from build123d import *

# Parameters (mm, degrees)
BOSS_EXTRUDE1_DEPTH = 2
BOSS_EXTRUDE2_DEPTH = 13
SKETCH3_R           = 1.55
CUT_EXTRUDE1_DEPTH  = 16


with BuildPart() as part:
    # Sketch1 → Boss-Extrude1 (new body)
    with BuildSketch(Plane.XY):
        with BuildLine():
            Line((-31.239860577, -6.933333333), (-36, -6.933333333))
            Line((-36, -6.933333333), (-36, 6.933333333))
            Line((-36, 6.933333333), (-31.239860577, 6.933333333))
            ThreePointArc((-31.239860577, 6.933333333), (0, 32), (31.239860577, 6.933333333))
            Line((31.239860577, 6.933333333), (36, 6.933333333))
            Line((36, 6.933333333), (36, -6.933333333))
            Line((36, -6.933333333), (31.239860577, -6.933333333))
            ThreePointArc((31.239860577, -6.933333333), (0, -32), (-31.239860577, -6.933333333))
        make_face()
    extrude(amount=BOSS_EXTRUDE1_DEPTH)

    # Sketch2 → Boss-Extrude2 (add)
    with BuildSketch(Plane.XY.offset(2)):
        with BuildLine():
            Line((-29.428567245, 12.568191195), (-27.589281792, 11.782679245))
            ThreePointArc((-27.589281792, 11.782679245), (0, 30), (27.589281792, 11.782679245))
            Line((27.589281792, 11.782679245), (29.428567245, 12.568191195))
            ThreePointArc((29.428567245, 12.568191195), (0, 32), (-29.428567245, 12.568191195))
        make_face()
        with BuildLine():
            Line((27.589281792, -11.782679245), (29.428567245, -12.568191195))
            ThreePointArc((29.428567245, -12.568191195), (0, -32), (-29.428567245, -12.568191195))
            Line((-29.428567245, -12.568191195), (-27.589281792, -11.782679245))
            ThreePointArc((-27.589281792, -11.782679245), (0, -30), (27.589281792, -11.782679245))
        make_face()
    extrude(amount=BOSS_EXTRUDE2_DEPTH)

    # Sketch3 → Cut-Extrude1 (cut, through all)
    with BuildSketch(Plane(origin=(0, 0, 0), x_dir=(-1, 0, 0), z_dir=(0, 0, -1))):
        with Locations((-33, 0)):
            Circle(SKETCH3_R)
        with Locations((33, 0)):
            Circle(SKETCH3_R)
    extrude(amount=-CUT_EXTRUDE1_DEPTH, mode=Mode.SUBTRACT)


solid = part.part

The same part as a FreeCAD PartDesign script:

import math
import FreeCAD as App
import Part
import Sketcher

V = App.Vector
Q = App.Units.Quantity

doc = App.newDocument("Part")
body = doc.addObject("PartDesign::Body", "Body")

sketch1 = body.newObject("Sketcher::SketchObject", "Sketch")
sketch1.AttachmentSupport = (doc.getObject("XY_Plane"), [""])
sketch1.MapMode = "FlatFace"
sketch1.addGeometry(Part.LineSegment(V(-36, -6.9, 0), V(-31.2, -6.9, 0)), False)
sketch1.addGeometry(Part.ArcOfCircle(Part.Circle(V(0, 0, 0), V(0, 0, 1), 32), math.radians(-167), math.radians(-13)), False)
sketch1.addGeometry(Part.LineSegment(V(31.2, -6.9, 0), V(36, -6.9, 0)), False)
sketch1.addGeometry(Part.LineSegment(V(36, -6.9, 0), V(36, 6.9, 0)), False)
sketch1.addGeometry(Part.LineSegment(V(36, 6.9, 0), V(31.2, 6.9, 0)), False)
sketch1.addGeometry(Part.ArcOfCircle(Part.Circle(V(0, 0, 0), V(0, 0, 1), 32), math.radians(13), math.radians(167)), False)
sketch1.addGeometry(Part.LineSegment(V(-31.2, 6.9, 0), V(-36, 6.9, 0)), False)
sketch1.addGeometry(Part.LineSegment(V(-36, 6.9, 0), V(-36, -6.9, 0)), False)
sketch1.addConstraint(Sketcher.Constraint("Coincident", 0, 2, 1, 1))
sketch1.addConstraint(Sketcher.Constraint("Coincident", 1, 2, 2, 1))
sketch1.addConstraint(Sketcher.Constraint("Coincident", 2, 2, 3, 1))
sketch1.addConstraint(Sketcher.Constraint("Coincident", 3, 2, 4, 1))
sketch1.addConstraint(Sketcher.Constraint("Coincident", 4, 2, 5, 1))
sketch1.addConstraint(Sketcher.Constraint("Coincident", 5, 2, 6, 1))
sketch1.addConstraint(Sketcher.Constraint("Coincident", 6, 2, 7, 1))
sketch1.addConstraint(Sketcher.Constraint("Coincident", 7, 2, 0, 1))
sketch1.addConstraint(Sketcher.Constraint("Horizontal", 0))
sketch1.addConstraint(Sketcher.Constraint("Horizontal", 2))
sketch1.addConstraint(Sketcher.Constraint("Vertical", 3))
sketch1.addConstraint(Sketcher.Constraint("Horizontal", 4))
sketch1.addConstraint(Sketcher.Constraint("Horizontal", 6))
sketch1.addConstraint(Sketcher.Constraint("Vertical", 7))
sketch1.addConstraint(Sketcher.Constraint("Coincident", 1, 3, -1, 1))
sketch1.addConstraint(Sketcher.Constraint("Coincident", 5, 3, -1, 1))
sketch1.addConstraint(Sketcher.Constraint("Equal", 1, 5))
sketch1.addConstraint(Sketcher.Constraint("Symmetric", 2, 2, 6, 2, -1, 1))
sketch1.addConstraint(Sketcher.Constraint("Horizontal", 0, 2, 1, 2))
sketch1.addConstraint(Sketcher.Constraint("Horizontal", 4, 2, 5, 2))
sketch1.addConstraint(Sketcher.Constraint("Radius", 1, Q("32 mm")))
sketch1.addConstraint(Sketcher.Constraint("DistanceX", -1, 1, 2, 2, Q("36 mm")))
sketch1.addConstraint(Sketcher.Constraint("DistanceX", 0, 1, 0, 2, Q("4.760139 mm")))
pad1 = body.newObject("PartDesign::Pad", "Pad")
pad1.Profile = sketch1
pad1.Length = 2

sketch2 = body.newObject("Sketcher::SketchObject", "Sketch001")
sketch2.AttachmentSupport = (doc.getObject("XY_Plane"), [""])
sketch2.MapMode = "FlatFace"
sketch2.AttachmentOffset = App.Placement(V(0, 0, 2), App.Rotation())
sketch2.addGeometry(Part.LineSegment(V(-29.4, 12.6, 0), V(-27.6, 11.8, 0)), False)
sketch2.addGeometry(Part.ArcOfCircle(Part.Circle(V(0, 0, 0), V(0, 0, 1), 30), math.radians(23), math.radians(157)), False)
sketch2.addGeometry(Part.LineSegment(V(27.6, 11.8, 0), V(29.4, 12.6, 0)), False)
sketch2.addGeometry(Part.ArcOfCircle(Part.Circle(V(0, 0, 0), V(0, 0, 1), 32), math.radians(23), math.radians(157)), False)
sketch2.addGeometry(Part.LineSegment(V(29.4, -12.6, 0), V(27.6, -11.8, 0)), False)
sketch2.addGeometry(Part.ArcOfCircle(Part.Circle(V(0, 0, 0), V(0, 0, 1), 30), math.radians(-157), math.radians(-23)), False)
sketch2.addGeometry(Part.LineSegment(V(-27.6, -11.8, 0), V(-29.4, -12.6, 0)), False)
sketch2.addGeometry(Part.ArcOfCircle(Part.Circle(V(0, 0, 0), V(0, 0, 1), 32), math.radians(-157), math.radians(-23)), False)
sketch2.addConstraint(Sketcher.Constraint("Coincident", 0, 2, 1, 2))
sketch2.addConstraint(Sketcher.Constraint("Coincident", 1, 1, 2, 1))
sketch2.addConstraint(Sketcher.Constraint("Coincident", 2, 2, 3, 1))
sketch2.addConstraint(Sketcher.Constraint("Coincident", 3, 2, 0, 1))
sketch2.addConstraint(Sketcher.Constraint("Coincident", 4, 2, 5, 2))
sketch2.addConstraint(Sketcher.Constraint("Coincident", 5, 1, 6, 1))
sketch2.addConstraint(Sketcher.Constraint("Coincident", 6, 2, 7, 1))
sketch2.addConstraint(Sketcher.Constraint("Coincident", 7, 2, 4, 1))
sketch2.addConstraint(Sketcher.Constraint("Coincident", 1, 3, -1, 1))
sketch2.addConstraint(Sketcher.Constraint("Coincident", 3, 3, -1, 1))
sketch2.addConstraint(Sketcher.Constraint("Coincident", 5, 3, -1, 1))
sketch2.addConstraint(Sketcher.Constraint("Coincident", 7, 3, -1, 1))
sketch2.addConstraint(Sketcher.Constraint("Equal", 1, 5))
sketch2.addConstraint(Sketcher.Constraint("Equal", 3, 7))
sketch2.addConstraint(Sketcher.Constraint("Parallel", 0, 4))
sketch2.addConstraint(Sketcher.Constraint("Parallel", 2, 6))
sketch2.addConstraint(Sketcher.Constraint("Horizontal", 0, 2, 1, 1))
sketch2.addConstraint(Sketcher.Constraint("Horizontal", 2, 2, 3, 2))
sketch2.addConstraint(Sketcher.Constraint("Horizontal", 4, 2, 5, 1))
sketch2.addConstraint(Sketcher.Constraint("Vertical", 1, 1, 4, 2))
sketch2.addConstraint(Sketcher.Constraint("Radius", 1, Q("30 mm")))
sketch2.addConstraint(Sketcher.Constraint("Radius", 3, Q("32 mm")))
sketch2.addConstraint(Sketcher.Constraint("DistanceX", 0, 2, -1, 1, Q("27.589282 mm")))
sketch2.addConstraint(Sketcher.Constraint("DistanceY", -1, 1, 2, 2, Q("12.568191 mm")))
pad2 = body.newObject("PartDesign::Pad", "Pad001")
pad2.Profile = sketch2
pad2.Length = 13

sketch3 = body.newObject("Sketcher::SketchObject", "Sketch002")
sketch3.AttachmentSupport = (doc.getObject("XY_Plane"), [""])
sketch3.MapMode = "FlatFace"
sketch3.addGeometry(Part.Circle(V(33, 0, 0), V(0, 0, 1), 1.6), False)
sketch3.addGeometry(Part.Circle(V(-33, 0, 0), V(0, 0, 1), 1.6), False)
sketch3.addConstraint(Sketcher.Constraint("Equal", 0, 1))
sketch3.addConstraint(Sketcher.Constraint("Symmetric", 0, 3, 1, 3, -1, 1))
sketch3.addConstraint(Sketcher.Constraint("PointOnObject", 0, 3, -1))
sketch3.addConstraint(Sketcher.Constraint("Diameter", 0, Q("3.1 mm")))
sketch3.addConstraint(Sketcher.Constraint("DistanceX", -1, 1, 0, 3, Q("33 mm")))
pocket1 = body.newObject("PartDesign::Pocket", "Pocket")
pocket1.Profile = sketch3
pocket1.Type = "ThroughAll"
pocket1.Reversed = True

doc.recompute()
